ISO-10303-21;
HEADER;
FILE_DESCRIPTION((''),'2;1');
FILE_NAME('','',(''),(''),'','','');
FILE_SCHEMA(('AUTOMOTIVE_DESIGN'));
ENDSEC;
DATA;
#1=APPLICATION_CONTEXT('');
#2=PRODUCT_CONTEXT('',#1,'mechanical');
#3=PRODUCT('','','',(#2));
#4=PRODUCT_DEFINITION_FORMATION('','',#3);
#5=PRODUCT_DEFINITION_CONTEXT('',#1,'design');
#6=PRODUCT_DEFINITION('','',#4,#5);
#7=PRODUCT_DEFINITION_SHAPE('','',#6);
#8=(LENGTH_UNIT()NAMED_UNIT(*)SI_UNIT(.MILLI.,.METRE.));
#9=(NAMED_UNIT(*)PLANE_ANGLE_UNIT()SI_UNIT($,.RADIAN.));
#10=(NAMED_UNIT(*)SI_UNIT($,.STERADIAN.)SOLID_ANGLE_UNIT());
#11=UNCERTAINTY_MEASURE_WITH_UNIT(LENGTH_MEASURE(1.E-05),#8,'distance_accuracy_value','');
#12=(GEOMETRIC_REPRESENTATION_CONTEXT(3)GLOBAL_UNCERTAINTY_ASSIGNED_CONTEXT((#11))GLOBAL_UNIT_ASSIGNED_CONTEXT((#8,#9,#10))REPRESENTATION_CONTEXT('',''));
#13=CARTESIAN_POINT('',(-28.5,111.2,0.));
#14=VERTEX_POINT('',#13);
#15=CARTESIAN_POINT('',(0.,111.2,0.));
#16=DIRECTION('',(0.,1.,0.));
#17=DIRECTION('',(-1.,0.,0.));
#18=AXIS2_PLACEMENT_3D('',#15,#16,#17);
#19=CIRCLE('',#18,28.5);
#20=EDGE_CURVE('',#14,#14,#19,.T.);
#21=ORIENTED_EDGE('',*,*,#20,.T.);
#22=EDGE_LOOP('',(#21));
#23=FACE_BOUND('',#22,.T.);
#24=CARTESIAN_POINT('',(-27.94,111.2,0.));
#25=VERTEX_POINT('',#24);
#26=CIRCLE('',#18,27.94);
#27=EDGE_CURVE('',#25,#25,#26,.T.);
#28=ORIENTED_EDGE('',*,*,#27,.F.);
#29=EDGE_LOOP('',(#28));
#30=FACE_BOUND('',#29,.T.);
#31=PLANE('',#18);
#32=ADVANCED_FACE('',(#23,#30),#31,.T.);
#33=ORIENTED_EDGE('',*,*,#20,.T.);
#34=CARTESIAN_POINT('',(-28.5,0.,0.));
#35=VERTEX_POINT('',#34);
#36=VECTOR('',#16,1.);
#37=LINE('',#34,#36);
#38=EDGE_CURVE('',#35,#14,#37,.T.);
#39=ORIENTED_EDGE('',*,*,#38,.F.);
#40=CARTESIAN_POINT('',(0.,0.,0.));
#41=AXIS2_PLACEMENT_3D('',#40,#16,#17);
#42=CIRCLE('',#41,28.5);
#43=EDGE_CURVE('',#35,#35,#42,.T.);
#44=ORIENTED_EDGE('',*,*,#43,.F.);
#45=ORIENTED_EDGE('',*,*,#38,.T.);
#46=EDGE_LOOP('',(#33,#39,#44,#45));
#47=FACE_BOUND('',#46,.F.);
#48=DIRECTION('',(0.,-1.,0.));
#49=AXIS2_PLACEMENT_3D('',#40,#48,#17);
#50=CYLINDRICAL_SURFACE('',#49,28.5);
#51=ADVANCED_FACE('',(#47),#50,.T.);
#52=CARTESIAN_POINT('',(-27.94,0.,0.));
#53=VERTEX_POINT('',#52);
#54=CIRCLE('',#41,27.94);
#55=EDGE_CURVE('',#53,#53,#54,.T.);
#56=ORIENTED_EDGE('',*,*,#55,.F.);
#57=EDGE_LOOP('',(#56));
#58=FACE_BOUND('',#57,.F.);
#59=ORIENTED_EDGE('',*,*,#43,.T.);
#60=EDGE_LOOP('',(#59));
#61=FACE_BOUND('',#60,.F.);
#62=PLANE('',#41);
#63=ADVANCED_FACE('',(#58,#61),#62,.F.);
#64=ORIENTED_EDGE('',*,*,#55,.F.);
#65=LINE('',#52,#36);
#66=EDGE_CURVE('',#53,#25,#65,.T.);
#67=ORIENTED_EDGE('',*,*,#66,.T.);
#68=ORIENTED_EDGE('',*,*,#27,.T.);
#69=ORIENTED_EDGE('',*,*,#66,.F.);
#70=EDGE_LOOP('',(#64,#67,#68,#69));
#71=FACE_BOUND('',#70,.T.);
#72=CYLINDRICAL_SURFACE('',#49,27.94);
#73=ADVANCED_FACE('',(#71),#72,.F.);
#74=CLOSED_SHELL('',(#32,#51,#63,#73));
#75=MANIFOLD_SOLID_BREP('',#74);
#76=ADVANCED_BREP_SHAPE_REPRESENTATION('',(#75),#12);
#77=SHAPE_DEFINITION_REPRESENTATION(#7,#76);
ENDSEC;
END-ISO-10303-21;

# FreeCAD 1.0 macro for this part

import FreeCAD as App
import Part
import Sketcher
from FreeCAD import Vector

doc = App.newDocument("Part")
body = doc.addObject("PartDesign::Body", "Body")

sketch1 = doc.addObject("Sketcher::SketchObject", "Sketch")
body.addObject(sketch1)
sketch1.AttachmentSupport = (doc.XZ_Plane, [""])
sketch1.MapMode = "FlatFace"
sketch1.addGeometry([
    Part.Circle(Vector(0, 0, 0), Vector(0, 0, 1), 28),
    Part.Circle(Vector(0, 0, 0), Vector(0, 0, 1), 28),
], False)
sketch1.addConstraint([
    Sketcher.Constraint("Coincident", 0, 3, -1, 1),
    Sketcher.Constraint("Coincident", 1, 3, -1, 1),
    Sketcher.Constraint("Diameter", 0, 57.0),
    Sketcher.Constraint("Diameter", 1, 55.88),
])
pad1 = doc.addObject("PartDesign::Pad", "Pad")
body.addObject(pad1)
pad1.Profile = sketch1
pad1.Length = 111.2
pad1.Reversed = True

doc.recompute()
